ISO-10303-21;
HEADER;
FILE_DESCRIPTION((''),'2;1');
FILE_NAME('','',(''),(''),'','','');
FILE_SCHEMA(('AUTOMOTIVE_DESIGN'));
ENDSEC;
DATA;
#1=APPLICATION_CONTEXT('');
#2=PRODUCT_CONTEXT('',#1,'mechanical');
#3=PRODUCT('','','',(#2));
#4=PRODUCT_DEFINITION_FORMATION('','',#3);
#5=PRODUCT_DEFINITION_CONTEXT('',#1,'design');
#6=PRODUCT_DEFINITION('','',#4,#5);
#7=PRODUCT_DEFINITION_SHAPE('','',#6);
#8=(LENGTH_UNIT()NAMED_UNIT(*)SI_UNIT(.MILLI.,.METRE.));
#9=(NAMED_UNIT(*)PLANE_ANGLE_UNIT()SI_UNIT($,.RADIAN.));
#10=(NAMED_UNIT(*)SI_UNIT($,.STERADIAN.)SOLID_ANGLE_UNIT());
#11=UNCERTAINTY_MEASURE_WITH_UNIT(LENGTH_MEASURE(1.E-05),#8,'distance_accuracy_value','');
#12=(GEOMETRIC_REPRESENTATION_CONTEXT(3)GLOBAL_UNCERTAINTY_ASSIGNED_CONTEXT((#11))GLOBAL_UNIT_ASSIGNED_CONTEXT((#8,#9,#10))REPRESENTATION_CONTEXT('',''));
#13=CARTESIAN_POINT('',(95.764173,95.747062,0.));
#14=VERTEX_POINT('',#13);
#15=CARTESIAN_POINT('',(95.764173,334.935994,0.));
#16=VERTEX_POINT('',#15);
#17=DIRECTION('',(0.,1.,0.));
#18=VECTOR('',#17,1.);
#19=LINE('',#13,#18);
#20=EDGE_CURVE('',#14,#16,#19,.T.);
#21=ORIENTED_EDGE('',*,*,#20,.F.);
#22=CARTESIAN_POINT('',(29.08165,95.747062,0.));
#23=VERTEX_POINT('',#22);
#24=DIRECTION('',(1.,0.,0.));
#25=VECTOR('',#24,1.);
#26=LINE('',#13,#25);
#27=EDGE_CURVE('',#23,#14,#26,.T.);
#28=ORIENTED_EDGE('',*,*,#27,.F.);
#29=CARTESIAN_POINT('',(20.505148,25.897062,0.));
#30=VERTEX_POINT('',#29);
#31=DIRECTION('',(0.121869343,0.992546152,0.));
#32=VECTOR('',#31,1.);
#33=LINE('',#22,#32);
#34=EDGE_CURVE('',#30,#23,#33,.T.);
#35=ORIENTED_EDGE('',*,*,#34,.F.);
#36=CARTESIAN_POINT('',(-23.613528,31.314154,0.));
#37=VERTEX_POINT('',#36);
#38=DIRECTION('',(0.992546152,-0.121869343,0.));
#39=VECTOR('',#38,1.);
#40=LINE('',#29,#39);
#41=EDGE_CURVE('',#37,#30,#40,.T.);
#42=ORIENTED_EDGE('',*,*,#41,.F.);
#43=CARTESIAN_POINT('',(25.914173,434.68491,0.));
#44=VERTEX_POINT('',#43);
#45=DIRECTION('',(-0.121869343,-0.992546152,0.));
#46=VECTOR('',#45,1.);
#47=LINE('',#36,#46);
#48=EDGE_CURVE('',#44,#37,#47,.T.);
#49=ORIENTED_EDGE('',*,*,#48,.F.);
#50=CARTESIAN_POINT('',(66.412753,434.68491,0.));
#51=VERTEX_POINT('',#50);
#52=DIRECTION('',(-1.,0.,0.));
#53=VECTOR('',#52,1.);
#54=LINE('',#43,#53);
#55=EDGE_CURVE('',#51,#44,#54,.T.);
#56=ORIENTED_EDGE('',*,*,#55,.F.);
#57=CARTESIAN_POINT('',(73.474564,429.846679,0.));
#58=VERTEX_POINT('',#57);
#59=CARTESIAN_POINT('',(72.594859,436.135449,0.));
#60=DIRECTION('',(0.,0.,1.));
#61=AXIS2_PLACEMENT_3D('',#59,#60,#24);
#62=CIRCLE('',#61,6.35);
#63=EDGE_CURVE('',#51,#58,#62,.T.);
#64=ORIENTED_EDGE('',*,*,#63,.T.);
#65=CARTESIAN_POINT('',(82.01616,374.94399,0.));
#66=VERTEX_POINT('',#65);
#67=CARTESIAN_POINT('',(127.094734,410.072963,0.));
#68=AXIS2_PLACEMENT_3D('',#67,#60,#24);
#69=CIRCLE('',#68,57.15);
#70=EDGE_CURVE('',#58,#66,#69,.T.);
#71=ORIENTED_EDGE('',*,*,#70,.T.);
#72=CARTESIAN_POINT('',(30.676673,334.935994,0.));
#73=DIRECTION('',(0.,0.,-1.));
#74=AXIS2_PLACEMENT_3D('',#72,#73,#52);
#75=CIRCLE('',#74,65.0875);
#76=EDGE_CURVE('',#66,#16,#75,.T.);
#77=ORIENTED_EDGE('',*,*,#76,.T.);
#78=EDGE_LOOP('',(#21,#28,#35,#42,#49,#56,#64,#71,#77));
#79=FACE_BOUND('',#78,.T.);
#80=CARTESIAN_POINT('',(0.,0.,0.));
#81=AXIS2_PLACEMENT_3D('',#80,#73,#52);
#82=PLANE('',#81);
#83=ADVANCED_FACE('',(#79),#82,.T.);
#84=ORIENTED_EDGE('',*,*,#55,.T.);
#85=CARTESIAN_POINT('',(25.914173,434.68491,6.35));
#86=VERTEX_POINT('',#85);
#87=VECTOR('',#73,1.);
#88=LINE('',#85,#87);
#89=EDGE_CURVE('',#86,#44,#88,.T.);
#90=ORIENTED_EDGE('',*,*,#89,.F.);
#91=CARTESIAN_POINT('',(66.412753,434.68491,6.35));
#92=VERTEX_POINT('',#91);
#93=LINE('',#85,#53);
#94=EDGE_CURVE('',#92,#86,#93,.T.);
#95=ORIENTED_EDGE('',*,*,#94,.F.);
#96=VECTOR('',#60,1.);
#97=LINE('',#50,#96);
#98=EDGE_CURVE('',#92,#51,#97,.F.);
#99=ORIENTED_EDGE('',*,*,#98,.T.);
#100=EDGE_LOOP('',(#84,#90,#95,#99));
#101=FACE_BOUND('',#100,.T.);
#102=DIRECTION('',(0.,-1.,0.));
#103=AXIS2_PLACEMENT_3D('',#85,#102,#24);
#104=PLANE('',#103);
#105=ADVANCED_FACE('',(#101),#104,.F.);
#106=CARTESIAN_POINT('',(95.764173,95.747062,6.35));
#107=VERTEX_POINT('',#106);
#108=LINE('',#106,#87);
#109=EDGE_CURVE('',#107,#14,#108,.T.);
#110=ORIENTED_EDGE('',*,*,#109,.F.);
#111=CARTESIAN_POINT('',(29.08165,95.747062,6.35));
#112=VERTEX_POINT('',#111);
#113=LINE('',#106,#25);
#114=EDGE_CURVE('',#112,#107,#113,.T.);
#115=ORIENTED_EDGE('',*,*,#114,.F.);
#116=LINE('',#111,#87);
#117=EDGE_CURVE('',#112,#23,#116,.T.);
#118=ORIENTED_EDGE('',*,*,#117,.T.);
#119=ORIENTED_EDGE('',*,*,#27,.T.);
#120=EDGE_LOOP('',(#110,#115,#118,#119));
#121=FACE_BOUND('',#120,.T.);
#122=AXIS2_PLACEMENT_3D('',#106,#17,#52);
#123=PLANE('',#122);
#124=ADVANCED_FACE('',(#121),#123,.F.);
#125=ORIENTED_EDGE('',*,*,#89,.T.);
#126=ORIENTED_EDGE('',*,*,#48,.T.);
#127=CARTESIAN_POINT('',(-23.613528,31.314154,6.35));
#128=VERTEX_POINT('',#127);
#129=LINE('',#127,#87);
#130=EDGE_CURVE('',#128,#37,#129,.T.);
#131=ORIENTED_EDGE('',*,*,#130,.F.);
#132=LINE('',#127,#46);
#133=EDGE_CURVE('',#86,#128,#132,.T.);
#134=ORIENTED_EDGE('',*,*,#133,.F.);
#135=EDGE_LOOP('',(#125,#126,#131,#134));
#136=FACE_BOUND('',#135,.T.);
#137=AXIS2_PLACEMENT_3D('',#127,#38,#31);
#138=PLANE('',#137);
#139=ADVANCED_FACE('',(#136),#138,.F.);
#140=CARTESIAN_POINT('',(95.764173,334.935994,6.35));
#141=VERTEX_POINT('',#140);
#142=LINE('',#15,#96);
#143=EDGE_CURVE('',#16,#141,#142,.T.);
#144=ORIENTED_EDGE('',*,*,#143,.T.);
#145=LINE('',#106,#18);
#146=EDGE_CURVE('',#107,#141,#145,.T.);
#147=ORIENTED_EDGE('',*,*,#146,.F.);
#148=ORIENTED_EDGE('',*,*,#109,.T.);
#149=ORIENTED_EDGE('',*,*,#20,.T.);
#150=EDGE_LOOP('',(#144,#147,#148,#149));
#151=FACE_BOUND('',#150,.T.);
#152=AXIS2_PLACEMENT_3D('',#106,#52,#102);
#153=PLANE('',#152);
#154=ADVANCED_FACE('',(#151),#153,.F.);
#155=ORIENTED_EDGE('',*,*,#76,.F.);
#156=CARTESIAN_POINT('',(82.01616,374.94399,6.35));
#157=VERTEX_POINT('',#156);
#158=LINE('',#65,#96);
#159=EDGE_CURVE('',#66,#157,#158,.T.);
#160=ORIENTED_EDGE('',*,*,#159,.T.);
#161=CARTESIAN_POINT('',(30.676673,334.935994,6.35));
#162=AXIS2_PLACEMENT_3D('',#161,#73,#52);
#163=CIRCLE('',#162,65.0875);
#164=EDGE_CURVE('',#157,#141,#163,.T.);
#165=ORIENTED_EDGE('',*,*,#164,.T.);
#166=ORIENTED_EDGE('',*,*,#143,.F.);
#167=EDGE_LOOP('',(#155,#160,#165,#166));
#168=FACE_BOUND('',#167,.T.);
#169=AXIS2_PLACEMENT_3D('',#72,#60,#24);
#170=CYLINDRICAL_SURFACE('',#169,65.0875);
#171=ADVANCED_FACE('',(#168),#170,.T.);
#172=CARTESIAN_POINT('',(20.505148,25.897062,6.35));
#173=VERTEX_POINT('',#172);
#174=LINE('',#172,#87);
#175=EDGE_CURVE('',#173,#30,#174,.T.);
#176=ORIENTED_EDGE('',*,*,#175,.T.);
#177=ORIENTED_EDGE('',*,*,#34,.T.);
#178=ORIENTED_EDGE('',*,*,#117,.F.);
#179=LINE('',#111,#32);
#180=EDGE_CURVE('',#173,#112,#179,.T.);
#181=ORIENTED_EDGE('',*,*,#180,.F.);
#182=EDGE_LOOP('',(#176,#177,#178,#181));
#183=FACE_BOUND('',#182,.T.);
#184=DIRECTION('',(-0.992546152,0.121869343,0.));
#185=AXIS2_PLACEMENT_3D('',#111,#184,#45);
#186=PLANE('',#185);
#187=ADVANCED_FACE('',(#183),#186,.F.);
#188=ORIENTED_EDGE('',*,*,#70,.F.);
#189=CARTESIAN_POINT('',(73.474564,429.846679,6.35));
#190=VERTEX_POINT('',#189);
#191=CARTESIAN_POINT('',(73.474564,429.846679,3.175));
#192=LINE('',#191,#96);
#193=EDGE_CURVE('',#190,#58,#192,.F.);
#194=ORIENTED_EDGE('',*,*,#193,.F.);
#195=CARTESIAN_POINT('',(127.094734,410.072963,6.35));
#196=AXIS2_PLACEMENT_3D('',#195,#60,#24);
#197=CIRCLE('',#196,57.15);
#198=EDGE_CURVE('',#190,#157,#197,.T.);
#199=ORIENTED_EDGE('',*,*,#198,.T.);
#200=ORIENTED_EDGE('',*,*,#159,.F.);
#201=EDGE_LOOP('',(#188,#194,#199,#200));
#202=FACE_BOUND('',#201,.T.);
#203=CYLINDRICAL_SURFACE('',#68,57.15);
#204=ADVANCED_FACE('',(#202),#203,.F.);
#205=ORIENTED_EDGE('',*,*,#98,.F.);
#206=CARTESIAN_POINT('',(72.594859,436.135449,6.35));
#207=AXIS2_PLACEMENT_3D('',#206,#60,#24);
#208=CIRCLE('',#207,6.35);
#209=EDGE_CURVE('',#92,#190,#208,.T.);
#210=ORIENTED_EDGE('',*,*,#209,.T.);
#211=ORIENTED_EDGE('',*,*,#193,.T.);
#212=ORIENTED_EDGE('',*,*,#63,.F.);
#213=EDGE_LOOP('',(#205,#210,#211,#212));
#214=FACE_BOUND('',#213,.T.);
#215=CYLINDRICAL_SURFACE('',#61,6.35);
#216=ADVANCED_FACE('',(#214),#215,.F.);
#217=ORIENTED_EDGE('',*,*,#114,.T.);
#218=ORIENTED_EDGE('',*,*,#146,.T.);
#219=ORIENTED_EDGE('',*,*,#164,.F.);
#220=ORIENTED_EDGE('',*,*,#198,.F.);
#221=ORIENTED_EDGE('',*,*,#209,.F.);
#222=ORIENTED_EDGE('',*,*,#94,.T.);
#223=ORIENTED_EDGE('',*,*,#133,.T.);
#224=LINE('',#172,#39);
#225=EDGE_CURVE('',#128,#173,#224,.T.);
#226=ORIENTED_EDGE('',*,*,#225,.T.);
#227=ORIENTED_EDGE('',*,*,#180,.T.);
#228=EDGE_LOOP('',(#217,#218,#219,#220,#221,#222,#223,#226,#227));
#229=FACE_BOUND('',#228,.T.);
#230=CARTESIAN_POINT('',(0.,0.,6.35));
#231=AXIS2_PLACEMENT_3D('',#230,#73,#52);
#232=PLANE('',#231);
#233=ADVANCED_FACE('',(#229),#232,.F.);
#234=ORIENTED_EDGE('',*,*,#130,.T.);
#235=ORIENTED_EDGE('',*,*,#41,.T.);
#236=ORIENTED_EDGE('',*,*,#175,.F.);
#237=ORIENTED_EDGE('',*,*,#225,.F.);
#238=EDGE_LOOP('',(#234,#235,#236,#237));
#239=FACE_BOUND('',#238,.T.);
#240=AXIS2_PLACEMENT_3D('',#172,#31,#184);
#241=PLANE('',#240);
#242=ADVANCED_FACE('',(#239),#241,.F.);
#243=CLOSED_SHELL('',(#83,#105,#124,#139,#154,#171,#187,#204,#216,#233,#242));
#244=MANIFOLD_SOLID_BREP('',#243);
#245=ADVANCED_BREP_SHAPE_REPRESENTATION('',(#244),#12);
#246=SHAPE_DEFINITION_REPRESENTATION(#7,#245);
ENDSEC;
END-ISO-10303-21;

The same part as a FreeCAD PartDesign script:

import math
import FreeCAD as App
import Part
import Sketcher
from FreeCAD import Vector
Q = App.Units.Quantity


def add_polygon(sketch, points):
    """Adds a closed chain of lines whose ends are joined by coincident constraints."""
    first, n = sketch.GeometryCount, len(points)
    for a, b in zip(points, points[1:] + points[:1]):
        sketch.addGeometry(Part.LineSegment(App.Vector(*a, 0), App.Vector(*b, 0)), False)
    for i in range(n):
        sketch.addConstraint(Sketcher.Constraint("Coincident", first + i, 2, first + (i + 1) % n, 1))

doc = App.newDocument("Part")
body = doc.addObject("PartDesign::Body", "Body")

# Sketch on XY plane
sketch1 = body.newObject("Sketcher::SketchObject", "Sketch")
sketch1.AttachmentSupport = (doc.getObject("XY_Plane"), [""])
sketch1.MapMode = "FlatFace"
add_polygon(sketch1, [(-24, 31), (21, 26), (29, 96), (96, 96), (96, 435), (26, 435)])  # lines 0-5
sketch1.addConstraint([
    Sketcher.Constraint("Horizontal", 2),
    Sketcher.Constraint("Vertical", 3),
    Sketcher.Constraint("Horizontal", 4),
    Sketcher.Constraint("Perpendicular", 0, 1),
    Sketcher.Constraint("Parallel", 1, 5),
    Sketcher.Constraint("Distance", 5, Q("16 in")),
    Sketcher.Constraint("Angle", 0, Q("-7 deg")),
    Sketcher.Constraint("DistanceX", 4, 2, 4, 1, Q("2.75 in")),
    Sketcher.Constraint("Distance", 0, Q("1.75 in")),
    Sketcher.Constraint("DistanceY", 0, 2, 1, 2, Q("2.75 in")),
    Sketcher.Constraint("DistanceX", -1, 1, 0, 2, 20.505148),
    Sketcher.Constraint("DistanceY", -1, 1, 3, 2, 434.68491),
])
pad1 = body.newObject("PartDesign::Pad", "Pad")
pad1.Profile = sketch1
pad1.Length = Q("0.25 in")

# Sketch on XY plane
sketch2 = body.newObject("Sketcher::SketchObject", "Sketch001")
sketch2.AttachmentSupport = (doc.getObject("XY_Plane"), [""])
sketch2.MapMode = "FlatFace"
sketch2.AttachmentOffset = App.Placement(Vector(0, 0, 0.25 * 25.4), App.Rotation())
sketch2.addGeometry(Part.Circle(Vector(73, 436, 0), Vector(0, 0, 1), 6), False)
sketch2.addConstraint([
    Sketcher.Constraint("Diameter", 0, Q("0.5 in")),
    Sketcher.Constraint("DistanceX", -1, 1, 0, 3, 72.594859),
    Sketcher.Constraint("DistanceY", -1, 1, 0, 3, 436.135449),
])
pocket1 = body.newObject("PartDesign::Pocket", "Pocket")
pocket1.Profile = sketch2
pocket1.Length = Q("0.25 in")

# Sketch on XY plane
sketch3 = body.newObject("Sketcher::SketchObject", "Sketch002")
sketch3.AttachmentSupport = (doc.getObject("XY_Plane"), [""])
sketch3.MapMode = "FlatFace"
sketch3.AttachmentOffset = App.Placement(Vector(0, 0, 0.25 * 25.4), App.Rotation())
sketch3.addGeometry([
    Part.LineSegment(Vector(82, 440, 0), Vector(74, 432, 0)),  # 0
    Part.ArcOfCircle(Part.Circle(Vector(127, 410, 0), Vector(0, 0, 1), 57), math.radians(157), math.radians(218)),  # 1
    Part.ArcOfCircle(Part.Circle(Vector(31, 335, 0), Vector(0, 0, 1), 65), math.radians(0), math.radians(38)),  # 2
    Part.LineSegment(Vector(96, 335, 0), Vector(106, 438, 0)),  # 3
    Part.LineSegment(Vector(106, 438, 0), Vector(82, 440, 0)),  # 4
], False)
sketch3.addConstraint([
    Sketcher.Constraint("Coincident", 0, 2, 1, 1),
    Sketcher.Constraint("Tangent", 1, 2, 2, 2),
    Sketcher.Constraint("Coincident", 2, 1, 3, 1),
    Sketcher.Constraint("Coincident", 3, 2, 4, 1),
    Sketcher.Constraint("Coincident", 4, 2, 0, 1),
    Sketcher.Constraint("Vertical", 1, 2, 4, 2),
    Sketcher.Constraint("Radius", 1, Q("2.25 in")),
    Sketcher.Constraint("Radius", 2, Q("2.5625 in")),
    Sketcher.Constraint("DistanceY", -1, 1, 3, 2, 438.1646),
    Sketcher.Constraint("Distance", 3, 103.733841),
    Sketcher.Constraint("Distance", 4, 24.07414),
    Sketcher.Constraint("DistanceX", -1, 1, 0, 2, 74.295018),
    Sketcher.Constraint("DistanceY", -1, 1, 0, 2, 431.943321),
    Sketcher.Constraint("DistanceX", -1, 1, 1, 2, 82.01616),
    Sketcher.Constraint("DistanceY", -1, 1, 1, 2, 374.94399),
    Sketcher.Constraint("DistanceX", 0, 2, 3, 2, 31.694839),
])
pocket2 = body.newObject("PartDesign::Pocket", "Pocket001")
pocket2.Profile = sketch3
pocket2.Length = Q("0.25 in")

doc.recompute()
